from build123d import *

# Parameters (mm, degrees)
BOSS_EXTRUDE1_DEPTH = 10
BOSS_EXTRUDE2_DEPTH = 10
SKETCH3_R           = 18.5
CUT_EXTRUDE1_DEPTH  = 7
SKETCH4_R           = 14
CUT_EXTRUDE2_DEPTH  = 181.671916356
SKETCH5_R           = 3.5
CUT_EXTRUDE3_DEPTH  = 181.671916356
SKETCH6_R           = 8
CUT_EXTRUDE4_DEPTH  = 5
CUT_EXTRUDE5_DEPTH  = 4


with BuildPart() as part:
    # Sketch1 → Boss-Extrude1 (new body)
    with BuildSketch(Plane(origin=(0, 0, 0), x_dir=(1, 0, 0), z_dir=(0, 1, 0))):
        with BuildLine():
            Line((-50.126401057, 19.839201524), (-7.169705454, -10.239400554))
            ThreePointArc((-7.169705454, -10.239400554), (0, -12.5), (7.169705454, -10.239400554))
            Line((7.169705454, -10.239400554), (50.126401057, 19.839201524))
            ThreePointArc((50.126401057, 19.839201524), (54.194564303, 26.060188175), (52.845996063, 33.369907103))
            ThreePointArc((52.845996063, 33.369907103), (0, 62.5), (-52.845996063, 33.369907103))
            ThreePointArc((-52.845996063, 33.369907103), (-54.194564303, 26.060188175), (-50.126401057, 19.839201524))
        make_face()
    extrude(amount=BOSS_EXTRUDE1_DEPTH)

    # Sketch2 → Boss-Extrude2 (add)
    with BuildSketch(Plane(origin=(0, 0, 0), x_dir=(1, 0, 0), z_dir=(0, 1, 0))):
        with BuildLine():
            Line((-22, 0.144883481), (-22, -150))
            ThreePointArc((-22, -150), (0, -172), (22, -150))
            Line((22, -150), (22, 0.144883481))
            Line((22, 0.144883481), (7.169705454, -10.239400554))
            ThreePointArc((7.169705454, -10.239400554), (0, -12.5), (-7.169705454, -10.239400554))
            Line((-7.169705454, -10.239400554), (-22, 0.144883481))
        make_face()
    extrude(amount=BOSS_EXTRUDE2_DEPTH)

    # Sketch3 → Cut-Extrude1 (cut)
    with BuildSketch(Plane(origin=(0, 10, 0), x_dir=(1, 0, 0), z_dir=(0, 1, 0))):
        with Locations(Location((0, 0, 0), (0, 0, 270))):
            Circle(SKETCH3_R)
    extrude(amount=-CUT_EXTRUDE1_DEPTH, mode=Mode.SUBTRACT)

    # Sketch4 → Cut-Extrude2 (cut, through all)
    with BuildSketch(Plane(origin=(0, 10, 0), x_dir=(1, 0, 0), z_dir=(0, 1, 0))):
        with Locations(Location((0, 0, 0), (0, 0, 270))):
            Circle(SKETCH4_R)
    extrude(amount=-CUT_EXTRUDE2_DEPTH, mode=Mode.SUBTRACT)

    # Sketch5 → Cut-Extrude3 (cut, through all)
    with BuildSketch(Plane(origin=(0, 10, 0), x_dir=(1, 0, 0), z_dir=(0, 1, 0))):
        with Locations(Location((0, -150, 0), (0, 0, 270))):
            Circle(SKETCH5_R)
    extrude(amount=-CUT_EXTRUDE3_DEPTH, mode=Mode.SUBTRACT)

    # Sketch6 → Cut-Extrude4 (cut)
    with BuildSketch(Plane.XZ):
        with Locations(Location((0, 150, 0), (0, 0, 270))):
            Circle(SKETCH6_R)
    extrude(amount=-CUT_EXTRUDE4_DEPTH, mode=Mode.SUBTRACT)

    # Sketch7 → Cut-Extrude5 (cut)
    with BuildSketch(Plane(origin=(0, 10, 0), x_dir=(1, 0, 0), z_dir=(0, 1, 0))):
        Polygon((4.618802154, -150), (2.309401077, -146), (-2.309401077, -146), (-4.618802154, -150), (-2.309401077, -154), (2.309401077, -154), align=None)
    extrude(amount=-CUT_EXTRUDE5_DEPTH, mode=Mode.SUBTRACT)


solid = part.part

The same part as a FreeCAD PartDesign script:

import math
import FreeCAD as App
import Part
import Sketcher

V = App.Vector
Q = App.Units.Quantity


def add_polygon(sketch, points):
    """Adds a closed chain of lines whose ends are joined by coincident constraints."""
    first, n = sketch.GeometryCount, len(points)
    for a, b in zip(points, points[1:] + points[:1]):
        sketch.addGeometry(Part.LineSegment(App.Vector(*a, 0), App.Vector(*b, 0)), False)
    for i in range(n):
        sketch.addConstraint(Sketcher.Constraint("Coincident", first + i, 2, first + (i + 1) % n, 1))

doc = App.newDocument("Part")
body = doc.addObject("PartDesign::Body", "Body")

# Sketch on XZ plane
sketch1 = body.newObject("Sketcher::SketchObject", "Sketch")
sketch1.AttachmentSupport = (doc.getObject("XZ_Plane"), [""])
sketch1.MapMode = "FlatFace"
sketch1.addGeometry([
    Part.LineSegment(V(-50, -20, 0), V(-7, 10, 0)),  # 0
    Part.ArcOfCircle(Part.Circle(V(0, 0, 0), V(0, 0, 1), 13), math.radians(55), math.radians(125)),  # 1
    Part.LineSegment(V(7, 10, 0), V(50, -20, 0)),  # 2
    Part.ArcOfCircle(Part.Circle(V(44, -28, 0), V(0, 0, 1), 10), math.radians(-32), math.radians(55)),  # 3
    Part.ArcOfCircle(Part.Circle(V(0, 0, 0), V(0, 0, 1), 62), math.radians(-148), math.radians(-32)),  # 4
    Part.ArcOfCircle(Part.Circle(V(-44, -28, 0), V(0, 0, 1), 10), math.radians(125), math.radians(212)),  # 5
], False)
sketch1.addConstraint([
    Sketcher.Constraint("Tangent", 0, 2, 1, 2),
    Sketcher.Constraint("Tangent", 1, 1, 2, 1),
    Sketcher.Constraint("Tangent", 2, 2, 3, 2),
    Sketcher.Constraint("Tangent", 3, 1, 4, 2),
    Sketcher.Constraint("Tangent", 4, 1, 5, 2),
    Sketcher.Constraint("Tangent", 5, 1, 0, 1),
    Sketcher.Constraint("Coincident", 1, 3, -1, 1),
    Sketcher.Constraint("Coincident", 4, 3, -1, 1),
    Sketcher.Constraint("Equal", 3, 5),
    Sketcher.Constraint("Horizontal", 3, 3, 5, 3),
    Sketcher.Constraint("Radius", 3, 10.0),
    Sketcher.Constraint("Radius", 1, 12.5),
    Sketcher.Constraint("Radius", 4, 62.5),
    Sketcher.Constraint("Angle", 0, Q("35 deg")),
])
pad1 = body.newObject("PartDesign::Pad", "Pad")
pad1.Profile = sketch1
pad1.Length = 10
pad1.Reversed = True

# Sketch on XZ plane
sketch2 = body.newObject("Sketcher::SketchObject", "Sketch001")
sketch2.AttachmentSupport = (doc.getObject("XZ_Plane"), [""])
sketch2.MapMode = "FlatFace"
sketch2.addGeometry([
    Part.LineSegment(V(-22, 0, 0), V(-22, 150, 0)),  # 0
    Part.ArcOfCircle(Part.Circle(V(0, 150, 0), V(0, 0, 1), 22), math.radians(0), math.radians(180)),  # 1
    Part.LineSegment(V(22, 150, 0), V(22, 0, 0)),  # 2
    Part.LineSegment(V(22, 0, 0), V(7, 10, 0)),  # 3
    Part.ArcOfCircle(Part.Circle(V(0, 0, 0), V(0, 0, 1), 13), math.radians(55), math.radians(125)),  # 4
    Part.LineSegment(V(-7, 10, 0), V(-22, 0, 0)),  # 5
], False)
sketch2.addConstraint([
    Sketcher.Constraint("Tangent", 0, 2, 1, 2),
    Sketcher.Constraint("Tangent", 1, 1, 2, 1),
    Sketcher.Constraint("Coincident", 2, 2, 3, 1),
    Sketcher.Constraint("Tangent", 3, 2, 4, 1),
    Sketcher.Constraint("Tangent", 4, 2, 5, 1),
    Sketcher.Constraint("Coincident", 5, 2, 0, 1),
    Sketcher.Constraint("Vertical", 0),
    Sketcher.Constraint("Vertical", 2),
    Sketcher.Constraint("Coincident", 4, 3, -1, 1),
    Sketcher.Constraint("Symmetric", 2, 2, 5, 2, -2),
    Sketcher.Constraint("Radius", 1, 22.0),
    Sketcher.Constraint("Radius", 4, 12.5),
    Sketcher.Constraint("Angle", 3, Q("145 deg")),
    Sketcher.Constraint("DistanceY", -1, 1, 1, 3, 150.0),
])
pad2 = body.newObject("PartDesign::Pad", "Pad001")
pad2.Profile = sketch2
pad2.Length = 10
pad2.Reversed = True

# Sketch on XZ plane
sketch3 = body.newObject("Sketcher::SketchObject", "Sketch002")
sketch3.AttachmentSupport = (doc.getObject("XZ_Plane"), [""])
sketch3.MapMode = "FlatFace"
sketch3.AttachmentOffset = App.Placement(V(0, 0, -10), App.Rotation())
sketch3.addGeometry(Part.Circle(V(0, 0, 0), V(0, 0, 1), 18), False)
sketch3.addConstraint([
    Sketcher.Constraint("Coincident", 0, 3, -1, 1),
    Sketcher.Constraint("Diameter", 0, 37.0),
])
pocket1 = body.newObject("PartDesign::Pocket", "Pocket")
pocket1.Profile = sketch3
pocket1.Length = 7
pocket1.Reversed = True

# Sketch on XZ plane
sketch4 = body.newObject("Sketcher::SketchObject", "Sketch003")
sketch4.AttachmentSupport = (doc.getObject("XZ_Plane"), [""])
sketch4.MapMode = "FlatFace"
sketch4.AttachmentOffset = App.Placement(V(0, 0, -10), App.Rotation())
sketch4.addGeometry(Part.Circle(V(0, 0, 0), V(0, 0, 1), 14), False)
sketch4.addConstraint([
    Sketcher.Constraint("Coincident", 0, 3, -1, 1),
    Sketcher.Constraint("Diameter", 0, 28.0),
])
pocket2 = body.newObject("PartDesign::Pocket", "Pocket001")
pocket2.Profile = sketch4
pocket2.Type = "ThroughAll"
pocket2.Reversed = True

# Sketch on XZ plane
sketch5 = body.newObject("Sketcher::SketchObject", "Sketch004")
sketch5.AttachmentSupport = (doc.getObject("XZ_Plane"), [""])
sketch5.MapMode = "FlatFace"
sketch5.AttachmentOffset = App.Placement(V(0, 0, -10), App.Rotation())
sketch5.addGeometry(Part.Circle(V(0, 150, 0), V(0, 0, 1), 3.5), False)
sketch5.addConstraint([
    Sketcher.Constraint("PointOnObject", 0, 3, -2),
    Sketcher.Constraint("Diameter", 0, 7.0),
    Sketcher.Constraint("DistanceY", -1, 1, 0, 3, 150.0),
])
pocket3 = body.newObject("PartDesign::Pocket", "Pocket002")
pocket3.Profile = sketch5
pocket3.Type = "ThroughAll"
pocket3.Reversed = True

# Sketch on XZ plane
sketch6 = body.newObject("Sketcher::SketchObject", "Sketch005")
sketch6.AttachmentSupport = (doc.getObject("XZ_Plane"), [""])
sketch6.MapMode = "FlatFace"
sketch6.addGeometry(Part.Circle(V(0, 150, 0), V(0, 0, 1), 8), False)
sketch6.addConstraint([
    Sketcher.Constraint("PointOnObject", 0, 3, -2),
    Sketcher.Constraint("Diameter", 0, 16.0),
    Sketcher.Constraint("DistanceY", -1, 1, 0, 3, 150.0),
])
pocket4 = body.newObject("PartDesign::Pocket", "Pocket003")
pocket4.Profile = sketch6
pocket4.Length = 5

# Sketch on XZ plane
sketch7 = body.newObject("Sketcher::SketchObject", "Sketch006")
sketch7.AttachmentSupport = (doc.getObject("XZ_Plane"), [""])
sketch7.MapMode = "FlatFace"
sketch7.AttachmentOffset = App.Placement(V(0, 0, -10), App.Rotation())
add_polygon(sketch7, [(4.6, 150), (2.3, 146), (-2.3, 146), (-4.6, 150), (-2.3, 154), (2.3, 154)])  # lines 0-5
sketch7.addConstraint([
    Sketcher.Constraint("Horizontal", 1),
    Sketcher.Constraint("Horizontal", 4),
    Sketcher.Constraint("Symmetric", 2, 2, 5, 2, -2),
    Sketcher.Constraint("Parallel", 0, 3),
    Sketcher.Constraint("Parallel", 2, 5),
    Sketcher.Constraint("Vertical", 1, 2, 3, 2),
    Sketcher.Constraint("Vertical", 0, 2, 4, 2),
    Sketcher.Constraint("Angle", 0, Q("-120 deg")),
    Sketcher.Constraint("DistanceY", -1, 1, 0, 2, 146.0),
    Sketcher.Constraint("DistanceY", -1, 1, 2, 2, 150.0),
    Sketcher.Constraint("DistanceX", -1, 1, 0, 2, 2.309401),
])
pocket5 = body.newObject("PartDesign::Pocket", "Pocket004")
pocket5.Profile = sketch7
pocket5.Length = 4
pocket5.Reversed = True

doc.recompute()
